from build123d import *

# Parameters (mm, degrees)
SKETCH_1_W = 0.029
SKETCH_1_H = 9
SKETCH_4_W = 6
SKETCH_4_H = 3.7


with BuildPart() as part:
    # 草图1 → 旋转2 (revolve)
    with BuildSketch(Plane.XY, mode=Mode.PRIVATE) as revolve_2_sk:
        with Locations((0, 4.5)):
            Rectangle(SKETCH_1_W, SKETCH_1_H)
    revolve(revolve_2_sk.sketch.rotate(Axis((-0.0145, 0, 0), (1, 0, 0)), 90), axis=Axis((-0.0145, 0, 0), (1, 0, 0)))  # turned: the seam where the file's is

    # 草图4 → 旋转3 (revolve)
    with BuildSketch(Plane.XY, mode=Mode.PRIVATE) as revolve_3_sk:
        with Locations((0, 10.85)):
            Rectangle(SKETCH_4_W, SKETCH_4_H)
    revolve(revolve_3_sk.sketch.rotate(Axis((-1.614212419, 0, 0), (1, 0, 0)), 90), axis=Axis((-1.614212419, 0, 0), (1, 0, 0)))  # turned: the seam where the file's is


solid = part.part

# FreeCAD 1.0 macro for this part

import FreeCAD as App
import Part
import Sketcher
from FreeCAD import Vector
Q = App.Units.Quantity

doc = App.newDocument("Part")
params = doc.addObject("Spreadsheet::Sheet", "Params")
for row, (alias, value) in enumerate([
    ("sketch1_height", "9 mm"),
    ("revolution_angle", "360 deg"),
    ("sketch2_width", "6 mm"),
    ("sketch2_height", "3.7 mm"),
    ("revolution2_angle", "360 deg"),
], start=1):
    params.set(f"A{row}", alias)
    params.set(f"B{row}", "=" + value)
    params.setAlias(f"B{row}", alias)

body = doc.addObject("PartDesign::Body", "Body")

sketch1 = doc.addObject("Sketcher::SketchObject", "Sketch")
body.addObject(sketch1)
sketch1.AttachmentSupport = (doc.XY_Plane, [""])
sketch1.MapMode = "FlatFace"
sketch1.addGeometry([
    Part.LineSegment(Vector(-0.015, 9, 0), Vector(-0.015, 0, 0)),
    Part.LineSegment(Vector(-0.015, 0, 0), Vector(0.015, 0, 0)),
    Part.LineSegment(Vector(0.015, 0, 0), Vector(0.015, 9, 0)),
    Part.LineSegment(Vector(0.015, 9, 0), Vector(-0.015, 9, 0)),
], False)
sketch1.addConstraint([
    Sketcher.Constraint("Coincident", 0, 2, 1, 1),
    Sketcher.Constraint("Coincident", 1, 2, 2, 1),
    Sketcher.Constraint("Coincident", 2, 2, 3, 1),
    Sketcher.Constraint("Coincident", 3, 2, 0, 1),
    Sketcher.Constraint("Vertical", 0),
    Sketcher.Constraint("Horizontal", 1),
    Sketcher.Constraint("Vertical", 2),
    Sketcher.Constraint("Horizontal", 3),
    Sketcher.Constraint("Symmetric", 0, 2, 1, 2, -1, 1),
    Sketcher.Constraint("DistanceY", 0, 2, 0, 1, Q("9 mm")),
    Sketcher.Constraint("DistanceX", 1, 1, 1, 2, Q("0.029 mm")),
])
sketch1.setExpression("Constraints[9]", "Params.sketch1_height")
revolution = doc.addObject("PartDesign::Revolution", "Revolution")
body.addObject(revolution)
revolution.Profile = sketch1
revolution.ReferenceAxis = (sketch1, ["H_Axis"])
revolution.setExpression("Angle", "Params.revolution_angle")

sketch2 = doc.addObject("Sketcher::SketchObject", "Sketch001")
body.addObject(sketch2)
sketch2.AttachmentSupport = (doc.XY_Plane, [""])
sketch2.MapMode = "FlatFace"
sketch2.addGeometry([
    Part.LineSegment(Vector(-3, 12.7, 0), Vector(-3, 9, 0)),
    Part.LineSegment(Vector(-3, 9, 0), Vector(3, 9, 0)),
    Part.LineSegment(Vector(3, 9, 0), Vector(3, 12.7, 0)),
    Part.LineSegment(Vector(3, 12.7, 0), Vector(-3, 12.7, 0)),
], False)
sketch2.addConstraint([
    Sketcher.Constraint("Coincident", 0, 2, 1, 1),
    Sketcher.Constraint("Coincident", 1, 2, 2, 1),
    Sketcher.Constraint("Coincident", 2, 2, 3, 1),
    Sketcher.Constraint("Coincident", 3, 2, 0, 1),
    Sketcher.Constraint("Vertical", 0),
    Sketcher.Constraint("Horizontal", 1),
    Sketcher.Constraint("Vertical", 2),
    Sketcher.Constraint("Horizontal", 3),
    Sketcher.Constraint("DistanceX", 1, 1, 1, 2, Q("6 mm")),
    Sketcher.Constraint("DistanceY", 0, 2, 0, 1, Q("3.7 mm")),
    Sketcher.Constraint("DistanceX", 0, 2, -1, 1, Q("3 mm")),
    Sketcher.Constraint("DistanceY", -1, 1, 0, 2, Q("9 mm")),
])
sketch2.setExpression("Constraints[8]", "Params.sketch2_width")
sketch2.setExpression("Constraints[9]", "Params.sketch2_height")
revolution2 = doc.addObject("PartDesign::Revolution", "Revolution001")
body.addObject(revolution2)
revolution2.Profile = sketch2
revolution2.ReferenceAxis = (sketch2, ["H_Axis"])
revolution2.setExpression("Angle", "Params.revolution2_angle")

doc.recompute()
